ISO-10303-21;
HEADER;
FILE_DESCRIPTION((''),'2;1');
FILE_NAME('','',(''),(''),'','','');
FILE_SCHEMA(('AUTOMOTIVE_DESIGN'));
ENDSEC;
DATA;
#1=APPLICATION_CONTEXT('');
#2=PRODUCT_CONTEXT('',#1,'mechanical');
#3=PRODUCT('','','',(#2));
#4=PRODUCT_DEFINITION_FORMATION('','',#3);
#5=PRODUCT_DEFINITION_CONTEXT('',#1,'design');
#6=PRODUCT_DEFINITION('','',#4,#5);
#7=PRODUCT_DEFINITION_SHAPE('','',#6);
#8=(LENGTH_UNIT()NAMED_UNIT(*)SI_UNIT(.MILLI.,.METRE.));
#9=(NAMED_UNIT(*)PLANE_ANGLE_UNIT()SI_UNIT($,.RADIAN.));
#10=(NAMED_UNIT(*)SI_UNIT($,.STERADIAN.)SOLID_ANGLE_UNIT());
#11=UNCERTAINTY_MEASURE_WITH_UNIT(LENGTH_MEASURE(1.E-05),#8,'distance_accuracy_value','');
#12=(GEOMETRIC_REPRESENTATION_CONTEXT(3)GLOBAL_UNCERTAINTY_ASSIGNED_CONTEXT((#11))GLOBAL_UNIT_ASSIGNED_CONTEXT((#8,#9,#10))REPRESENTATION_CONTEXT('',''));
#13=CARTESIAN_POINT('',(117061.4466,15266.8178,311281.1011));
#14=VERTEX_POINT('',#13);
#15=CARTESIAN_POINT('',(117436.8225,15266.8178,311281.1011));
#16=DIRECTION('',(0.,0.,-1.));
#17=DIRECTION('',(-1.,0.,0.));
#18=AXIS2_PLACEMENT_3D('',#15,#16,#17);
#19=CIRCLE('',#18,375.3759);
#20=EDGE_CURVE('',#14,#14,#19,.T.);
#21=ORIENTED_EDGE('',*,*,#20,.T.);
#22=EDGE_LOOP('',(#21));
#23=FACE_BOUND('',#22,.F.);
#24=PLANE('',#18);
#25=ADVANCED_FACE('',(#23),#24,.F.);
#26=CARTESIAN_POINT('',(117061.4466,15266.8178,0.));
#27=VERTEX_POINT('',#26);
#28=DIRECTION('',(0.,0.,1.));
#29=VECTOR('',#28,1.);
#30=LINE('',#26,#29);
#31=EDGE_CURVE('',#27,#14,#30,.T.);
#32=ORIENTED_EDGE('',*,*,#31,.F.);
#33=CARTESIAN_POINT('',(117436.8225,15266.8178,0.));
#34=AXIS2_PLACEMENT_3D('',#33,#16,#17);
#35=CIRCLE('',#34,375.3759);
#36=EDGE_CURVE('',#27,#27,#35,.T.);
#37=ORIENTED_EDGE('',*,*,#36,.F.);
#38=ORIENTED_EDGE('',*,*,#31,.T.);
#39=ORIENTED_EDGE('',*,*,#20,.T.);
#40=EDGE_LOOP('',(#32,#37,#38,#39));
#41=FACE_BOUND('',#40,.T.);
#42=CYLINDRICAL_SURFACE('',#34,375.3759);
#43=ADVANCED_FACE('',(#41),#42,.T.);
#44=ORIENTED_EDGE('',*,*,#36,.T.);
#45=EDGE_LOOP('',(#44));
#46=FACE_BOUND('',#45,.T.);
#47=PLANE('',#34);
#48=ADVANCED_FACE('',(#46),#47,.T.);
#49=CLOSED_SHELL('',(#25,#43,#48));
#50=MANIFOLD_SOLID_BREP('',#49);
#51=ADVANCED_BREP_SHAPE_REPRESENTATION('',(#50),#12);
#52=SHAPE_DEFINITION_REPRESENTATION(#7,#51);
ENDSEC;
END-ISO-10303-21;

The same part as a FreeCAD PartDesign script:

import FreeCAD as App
import Part
import Sketcher

doc = App.newDocument("Part")
body = doc.addObject("PartDesign::Body", "Body")

# Sketch on XY plane
sketch1 = doc.addObject("Sketcher::SketchObject", "Sketch")
body.addObject(sketch1)
sketch1.AttachmentSupport = (doc.XY_Plane, [""])
sketch1.MapMode = "FlatFace"
sketch1.addGeometry(Part.Circle(App.Vector(117437, 15267, 0), App.Vector(0, 0, 1), 375), False)
sketch1.addConstraint(Sketcher.Constraint("Diameter", 0, 750.7518))
sketch1.addConstraint(Sketcher.Constraint("DistanceX", -1, 1, 0, 3, 117436.8225))
sketch1.addConstraint(Sketcher.Constraint("DistanceY", -1, 1, 0, 3, 15266.8178))
pad1 = doc.addObject("PartDesign::Pad", "Pad")
body.addObject(pad1)
pad1.Profile = sketch1
pad1.Length = 311281.1011

doc.recompute()
